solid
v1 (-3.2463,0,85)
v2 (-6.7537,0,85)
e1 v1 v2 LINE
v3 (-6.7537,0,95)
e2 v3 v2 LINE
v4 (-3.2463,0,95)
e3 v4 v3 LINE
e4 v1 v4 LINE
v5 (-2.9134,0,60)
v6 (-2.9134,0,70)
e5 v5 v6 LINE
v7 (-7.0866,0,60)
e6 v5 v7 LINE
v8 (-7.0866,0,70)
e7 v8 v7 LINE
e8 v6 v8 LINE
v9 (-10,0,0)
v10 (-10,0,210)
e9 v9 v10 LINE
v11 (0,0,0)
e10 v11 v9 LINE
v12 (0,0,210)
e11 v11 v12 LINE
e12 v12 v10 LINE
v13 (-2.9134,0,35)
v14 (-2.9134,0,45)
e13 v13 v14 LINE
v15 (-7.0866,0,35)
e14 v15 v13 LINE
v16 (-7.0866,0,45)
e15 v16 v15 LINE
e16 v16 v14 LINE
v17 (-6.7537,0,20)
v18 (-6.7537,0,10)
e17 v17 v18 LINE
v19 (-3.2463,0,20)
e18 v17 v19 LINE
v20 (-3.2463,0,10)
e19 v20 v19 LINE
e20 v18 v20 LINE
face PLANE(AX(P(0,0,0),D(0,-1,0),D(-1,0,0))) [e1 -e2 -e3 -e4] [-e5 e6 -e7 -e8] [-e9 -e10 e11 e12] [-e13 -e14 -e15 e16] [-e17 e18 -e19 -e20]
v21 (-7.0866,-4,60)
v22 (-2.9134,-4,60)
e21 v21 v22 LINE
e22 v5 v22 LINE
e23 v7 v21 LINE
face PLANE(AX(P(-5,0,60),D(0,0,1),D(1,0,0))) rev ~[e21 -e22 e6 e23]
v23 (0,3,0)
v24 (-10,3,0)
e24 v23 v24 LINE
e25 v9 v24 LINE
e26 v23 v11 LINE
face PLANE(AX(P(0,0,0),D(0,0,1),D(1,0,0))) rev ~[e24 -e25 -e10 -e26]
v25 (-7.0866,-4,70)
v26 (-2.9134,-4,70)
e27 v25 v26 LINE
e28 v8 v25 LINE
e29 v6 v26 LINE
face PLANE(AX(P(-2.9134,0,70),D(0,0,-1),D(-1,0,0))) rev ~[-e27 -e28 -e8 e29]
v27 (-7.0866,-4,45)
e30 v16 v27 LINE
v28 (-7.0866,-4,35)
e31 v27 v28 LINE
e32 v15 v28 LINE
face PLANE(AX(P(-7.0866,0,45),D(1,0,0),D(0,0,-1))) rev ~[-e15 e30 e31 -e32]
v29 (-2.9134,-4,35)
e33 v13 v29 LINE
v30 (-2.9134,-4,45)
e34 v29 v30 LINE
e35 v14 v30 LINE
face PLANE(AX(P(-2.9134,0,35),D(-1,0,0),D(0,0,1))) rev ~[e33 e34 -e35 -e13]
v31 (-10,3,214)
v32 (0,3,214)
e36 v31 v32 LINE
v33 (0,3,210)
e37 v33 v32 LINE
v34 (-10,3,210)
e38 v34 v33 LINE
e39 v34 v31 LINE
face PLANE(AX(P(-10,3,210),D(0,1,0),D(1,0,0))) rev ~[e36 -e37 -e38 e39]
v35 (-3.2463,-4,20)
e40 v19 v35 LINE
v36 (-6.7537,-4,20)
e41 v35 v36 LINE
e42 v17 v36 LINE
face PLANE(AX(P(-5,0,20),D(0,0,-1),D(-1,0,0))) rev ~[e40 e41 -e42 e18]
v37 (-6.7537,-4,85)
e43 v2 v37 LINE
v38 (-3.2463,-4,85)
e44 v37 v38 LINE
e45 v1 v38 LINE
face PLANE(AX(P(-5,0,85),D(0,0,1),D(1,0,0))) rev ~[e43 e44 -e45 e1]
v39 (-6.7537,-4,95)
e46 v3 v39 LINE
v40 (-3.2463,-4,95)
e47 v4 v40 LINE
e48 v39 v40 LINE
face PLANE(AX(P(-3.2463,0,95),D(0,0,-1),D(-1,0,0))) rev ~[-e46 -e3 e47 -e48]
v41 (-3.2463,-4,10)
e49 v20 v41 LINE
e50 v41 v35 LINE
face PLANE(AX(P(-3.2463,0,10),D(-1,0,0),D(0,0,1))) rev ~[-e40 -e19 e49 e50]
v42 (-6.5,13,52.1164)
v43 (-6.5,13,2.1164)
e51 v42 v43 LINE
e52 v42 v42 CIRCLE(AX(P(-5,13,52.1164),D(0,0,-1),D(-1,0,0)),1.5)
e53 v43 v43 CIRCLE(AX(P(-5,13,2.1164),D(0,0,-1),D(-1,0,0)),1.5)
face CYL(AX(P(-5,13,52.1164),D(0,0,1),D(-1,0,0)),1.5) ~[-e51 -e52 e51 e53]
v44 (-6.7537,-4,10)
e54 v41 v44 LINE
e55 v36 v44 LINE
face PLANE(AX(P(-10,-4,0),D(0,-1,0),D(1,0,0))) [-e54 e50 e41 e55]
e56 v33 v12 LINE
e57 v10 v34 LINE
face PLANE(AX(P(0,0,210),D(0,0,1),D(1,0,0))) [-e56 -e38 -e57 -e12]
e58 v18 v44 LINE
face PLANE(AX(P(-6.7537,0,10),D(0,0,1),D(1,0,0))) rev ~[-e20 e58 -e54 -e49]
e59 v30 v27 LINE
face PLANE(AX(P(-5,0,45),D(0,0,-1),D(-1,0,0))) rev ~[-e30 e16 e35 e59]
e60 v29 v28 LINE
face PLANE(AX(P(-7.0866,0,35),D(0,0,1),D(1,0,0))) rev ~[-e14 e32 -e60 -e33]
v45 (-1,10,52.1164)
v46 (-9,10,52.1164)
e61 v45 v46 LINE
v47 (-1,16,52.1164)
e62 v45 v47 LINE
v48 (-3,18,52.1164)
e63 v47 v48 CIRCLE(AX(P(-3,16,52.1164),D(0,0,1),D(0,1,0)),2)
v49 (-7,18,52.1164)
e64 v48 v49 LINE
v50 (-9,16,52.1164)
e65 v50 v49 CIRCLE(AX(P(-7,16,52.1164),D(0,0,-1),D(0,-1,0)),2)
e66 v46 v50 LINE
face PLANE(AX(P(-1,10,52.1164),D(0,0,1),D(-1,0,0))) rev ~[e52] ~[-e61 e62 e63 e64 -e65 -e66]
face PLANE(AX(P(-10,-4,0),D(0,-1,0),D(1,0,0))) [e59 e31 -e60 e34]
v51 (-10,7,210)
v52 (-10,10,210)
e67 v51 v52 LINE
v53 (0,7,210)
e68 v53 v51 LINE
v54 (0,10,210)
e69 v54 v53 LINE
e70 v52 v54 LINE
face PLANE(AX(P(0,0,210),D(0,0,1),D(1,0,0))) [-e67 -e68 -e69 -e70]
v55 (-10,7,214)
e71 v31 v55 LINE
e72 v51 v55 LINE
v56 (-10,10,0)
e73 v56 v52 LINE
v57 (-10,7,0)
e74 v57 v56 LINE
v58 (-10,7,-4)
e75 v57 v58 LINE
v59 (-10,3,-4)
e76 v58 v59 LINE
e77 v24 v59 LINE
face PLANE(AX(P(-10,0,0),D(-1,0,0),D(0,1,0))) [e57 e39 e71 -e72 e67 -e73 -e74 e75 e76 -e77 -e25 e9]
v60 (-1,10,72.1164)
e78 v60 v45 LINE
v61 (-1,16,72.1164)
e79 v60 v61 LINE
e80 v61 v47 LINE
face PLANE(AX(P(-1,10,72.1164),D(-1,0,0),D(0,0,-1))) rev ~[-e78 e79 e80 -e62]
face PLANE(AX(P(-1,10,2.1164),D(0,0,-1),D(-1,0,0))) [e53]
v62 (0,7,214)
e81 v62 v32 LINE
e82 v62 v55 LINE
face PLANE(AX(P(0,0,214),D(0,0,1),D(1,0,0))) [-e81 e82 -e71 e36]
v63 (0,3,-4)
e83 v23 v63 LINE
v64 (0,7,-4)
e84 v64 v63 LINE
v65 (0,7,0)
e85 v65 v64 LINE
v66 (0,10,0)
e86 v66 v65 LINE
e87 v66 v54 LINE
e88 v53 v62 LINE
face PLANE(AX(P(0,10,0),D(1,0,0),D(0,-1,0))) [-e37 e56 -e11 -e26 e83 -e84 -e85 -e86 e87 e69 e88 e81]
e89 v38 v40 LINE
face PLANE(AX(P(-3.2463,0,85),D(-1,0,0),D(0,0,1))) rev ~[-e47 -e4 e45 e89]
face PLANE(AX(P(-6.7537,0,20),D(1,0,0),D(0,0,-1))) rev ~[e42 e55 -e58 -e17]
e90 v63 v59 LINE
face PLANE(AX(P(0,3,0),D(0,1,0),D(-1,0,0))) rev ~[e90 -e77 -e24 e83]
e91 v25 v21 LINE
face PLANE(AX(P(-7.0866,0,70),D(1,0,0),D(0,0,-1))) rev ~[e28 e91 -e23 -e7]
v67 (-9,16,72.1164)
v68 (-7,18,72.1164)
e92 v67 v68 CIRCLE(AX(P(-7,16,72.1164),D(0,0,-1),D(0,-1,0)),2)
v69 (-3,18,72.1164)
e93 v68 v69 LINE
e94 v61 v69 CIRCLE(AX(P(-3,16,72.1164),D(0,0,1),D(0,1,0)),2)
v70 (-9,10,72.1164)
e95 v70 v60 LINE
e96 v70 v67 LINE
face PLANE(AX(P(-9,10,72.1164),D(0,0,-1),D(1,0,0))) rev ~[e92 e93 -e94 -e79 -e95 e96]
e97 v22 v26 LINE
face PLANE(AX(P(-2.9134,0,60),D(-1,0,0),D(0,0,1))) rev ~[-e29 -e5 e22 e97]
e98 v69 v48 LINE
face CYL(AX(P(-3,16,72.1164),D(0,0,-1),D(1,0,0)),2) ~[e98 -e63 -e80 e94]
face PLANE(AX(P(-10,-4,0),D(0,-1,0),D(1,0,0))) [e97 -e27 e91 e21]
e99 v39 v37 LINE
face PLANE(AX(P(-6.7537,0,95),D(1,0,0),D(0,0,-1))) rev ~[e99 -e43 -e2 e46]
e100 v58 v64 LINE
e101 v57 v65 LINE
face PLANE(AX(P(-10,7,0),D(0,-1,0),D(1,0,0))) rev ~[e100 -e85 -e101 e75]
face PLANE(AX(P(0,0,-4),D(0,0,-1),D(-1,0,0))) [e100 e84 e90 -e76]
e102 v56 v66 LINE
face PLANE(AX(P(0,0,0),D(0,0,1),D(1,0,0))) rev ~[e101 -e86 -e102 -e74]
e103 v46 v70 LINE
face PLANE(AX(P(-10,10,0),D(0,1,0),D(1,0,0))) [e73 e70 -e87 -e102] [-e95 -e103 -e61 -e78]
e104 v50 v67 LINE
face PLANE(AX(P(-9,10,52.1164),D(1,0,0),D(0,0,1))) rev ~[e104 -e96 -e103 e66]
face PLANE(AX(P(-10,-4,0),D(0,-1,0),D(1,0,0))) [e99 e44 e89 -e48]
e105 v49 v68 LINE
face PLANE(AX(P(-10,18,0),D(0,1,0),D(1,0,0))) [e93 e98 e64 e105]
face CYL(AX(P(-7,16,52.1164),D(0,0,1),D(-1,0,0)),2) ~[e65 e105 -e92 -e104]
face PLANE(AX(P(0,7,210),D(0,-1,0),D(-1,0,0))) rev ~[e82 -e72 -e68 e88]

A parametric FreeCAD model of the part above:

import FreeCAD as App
import Part
import Sketcher
from FreeCAD import Vector
Q = App.Units.Quantity


def edges_at(feature, points):
    """Names of the edges that pass closest to the given points."""
    edges = feature.Shape.Edges
    near = lambda p: min(range(len(edges)), key=lambda i: edges[i].distToShape(Part.Vertex(*p))[0])
    return sorted({f"Edge{near(p) + 1}" for p in points})


def add_polygon(sketch, points):
    """Adds a closed chain of lines whose ends are joined by coincident constraints."""
    first, n = sketch.GeometryCount, len(points)
    for a, b in zip(points, points[1:] + points[:1]):
        sketch.addGeometry(Part.LineSegment(App.Vector(*a, 0), App.Vector(*b, 0)), False)
    for i in range(n):
        sketch.addConstraint(Sketcher.Constraint("Coincident", first + i, 2, first + (i + 1) % n, 1))

doc = App.newDocument("Part")
params = doc.addObject("Spreadsheet::Sheet", "Params")
for row, (alias, value) in enumerate([
    ("sketch1_width", "10 mm"),
    ("pad1_length", "210 mm"),
    ("sketch2_height", "4 mm"),
    ("sketch2_width", "10 mm"),
    ("pad2_length", "4 mm"),
    ("sketch3_width", "10 mm"),
    ("sketch3_height", "4 mm"),
    ("pad3_length", "4 mm"),
    ("sketch4_height", "10 mm"),
    ("pad4_length", "4 mm"),
    ("sketch5_width", "8 mm"),
    ("sketch5_height", "20 mm"),
    ("pad5_length", "8 mm"),
    ("fillet_radius", "2 mm"),
    ("sketch6_diameter", "3 mm"),
    ("pad6_length", "50 mm"),
], start=1):
    params.set(f"A{row}", alias)
    params.set(f"B{row}", "=" + value)
    params.setAlias(f"B{row}", alias)

body = doc.addObject("PartDesign::Body", "Body")

sketch1 = doc.addObject("Sketcher::SketchObject", "Sketch")
body.addObject(sketch1)
sketch1.AttachmentSupport = (doc.XY_Plane, [""])
sketch1.MapMode = "FlatFace"
add_polygon(sketch1, [(-10, 0), (0, 0), (0, 10), (-10, 10)])
sketch1.addConstraint([
    Sketcher.Constraint("Horizontal", 0),
    Sketcher.Constraint("Vertical", 1),
    Sketcher.Constraint("Horizontal", 2),
    Sketcher.Constraint("Vertical", 3),
    Sketcher.Constraint("Coincident", 0, 2, -1, 1),
    Sketcher.Constraint("Equal", 2, 1),
    Sketcher.Constraint("DistanceX", 0, 1, 0, 2, Q("10 mm")),
])
sketch1.setExpression("Constraints[10]", "Params.sketch1_width")
pad1 = doc.addObject("PartDesign::Pad", "Pad")
body.addObject(pad1)
pad1.Profile = sketch1
pad1.setExpression("Length", "Params.pad1_length")

sketch2 = doc.addObject("Sketcher::SketchObject", "Sketch001")
body.addObject(sketch2)
sketch2.AttachmentSupport = (doc.XY_Plane, [""])
sketch2.MapMode = "FlatFace"
sketch2.AttachmentOffset = App.Placement(Vector(0, 0, 210), App.Rotation())
add_polygon(sketch2, [(0, 7), (-10, 7), (-10, 3), (0, 3)])
sketch2.addConstraint([
    Sketcher.Constraint("Horizontal", 0),
    Sketcher.Constraint("Vertical", 1),
    Sketcher.Constraint("Horizontal", 2),
    Sketcher.Constraint("Vertical", 3),
    Sketcher.Constraint("PointOnObject", 2, 2, -2),
    Sketcher.Constraint("DistanceY", 1, 2, 1, 1, Q("4 mm")),
    Sketcher.Constraint("DistanceX", 0, 2, 0, 1, Q("10 mm")),
    Sketcher.Constraint("DistanceY", -1, 1, 0, 2, Q("7 mm")),
])
sketch2.setExpression("Constraints[9]", "Params.sketch2_height")
sketch2.setExpression("Constraints[10]", "Params.sketch2_width")
pad2 = doc.addObject("PartDesign::Pad", "Pad001")
body.addObject(pad2)
pad2.Profile = sketch2
pad2.setExpression("Length", "Params.pad2_length")

sketch3 = doc.addObject("Sketcher::SketchObject", "Sketch002")
body.addObject(sketch3)
sketch3.AttachmentSupport = (doc.XY_Plane, [""])
sketch3.MapMode = "FlatFace"
add_polygon(sketch3, [(-10, 3), (-10, 7), (0, 7), (0, 3)])
sketch3.addConstraint([
    Sketcher.Constraint("Vertical", 0),
    Sketcher.Constraint("Horizontal", 1),
    Sketcher.Constraint("Vertical", 2),
    Sketcher.Constraint("Horizontal", 3),
    Sketcher.Constraint("PointOnObject", 1, 2, -2),
    Sketcher.Constraint("DistanceX", 1, 1, 1, 2, Q("10 mm")),
    Sketcher.Constraint("DistanceY", 0, 1, 0, 2, Q("4 mm")),
    Sketcher.Constraint("DistanceY", -1, 1, 0, 2, Q("7 mm")),
])
sketch3.setExpression("Constraints[9]", "Params.sketch3_width")
sketch3.setExpression("Constraints[10]", "Params.sketch3_height")
pad3 = doc.addObject("PartDesign::Pad", "Pad002")
body.addObject(pad3)
pad3.Profile = sketch3
pad3.setExpression("Length", "Params.pad3_length")
pad3.Reversed = True

sketch4 = doc.addObject("Sketcher::SketchObject", "Sketch003")
body.addObject(sketch4)
sketch4.AttachmentSupport = (doc.XZ_Plane, [""])
sketch4.MapMode = "FlatFace"
add_polygon(sketch4, [(-6.7537, 10), (-3.2463, 10), (-3.2463, 20), (-6.7537, 20)])
add_polygon(sketch4, [(-3.2463, 95), (-6.7537, 95), (-6.7537, 85), (-3.2463, 85)])
add_polygon(sketch4, [(-7.0866, 35), (-2.9134, 35), (-2.9134, 45), (-7.0866, 45)])
add_polygon(sketch4, [(-2.9134, 70), (-7.0866, 70), (-7.0866, 60), (-2.9134, 60)])
sketch4.addConstraint([
    Sketcher.Constraint("Horizontal", 0),
    Sketcher.Constraint("Vertical", 1),
    Sketcher.Constraint("Horizontal", 2),
    Sketcher.Constraint("Vertical", 3),
    Sketcher.Constraint("Horizontal", 4),
    Sketcher.Constraint("Vertical", 5),
    Sketcher.Constraint("Horizontal", 6),
    Sketcher.Constraint("Vertical", 7),
    Sketcher.Constraint("Horizontal", 8),
    Sketcher.Constraint("Vertical", 9),
    Sketcher.Constraint("Horizontal", 10),
    Sketcher.Constraint("Vertical", 11),
    Sketcher.Constraint("Horizontal", 12),
    Sketcher.Constraint("Vertical", 13),
    Sketcher.Constraint("Horizontal", 14),
    Sketcher.Constraint("Vertical", 15),
    Sketcher.Constraint("Vertical", 3, 2, 4, 2),
    Sketcher.Constraint("Vertical", 1, 2, 6, 2),
    Sketcher.Constraint("Vertical", 11, 2, 12, 2),
    Sketcher.Constraint("Vertical", 9, 2, 14, 2),
    Sketcher.Constraint("Equal", 3, 5),
    Sketcher.Constraint("Equal", 7, 9),
    Sketcher.Constraint("Equal", 11, 13),
    Sketcher.Constraint("DistanceY", 1, 1, 1, 2, Q("10 mm")),
    Sketcher.Constraint("DistanceY", -1, 1, 0, 2, Q("10 mm")),
    Sketcher.Constraint("DistanceY", 1, 2, 8, 2, Q("15 mm")),
    Sketcher.Constraint("DistanceY", 12, 2, 5, 2, Q("15 mm")),
    Sketcher.Constraint("DistanceY", 10, 2, 13, 2, Q("15 mm")),
    Sketcher.Constraint("DistanceX", 0, 1, 0, 2, Q("3.5074 mm")),
    Sketcher.Constraint("DistanceX", 8, 1, 8, 2, Q("4.1732 mm")),
    Sketcher.Constraint("DistanceX", 1, 2, 8, 2, Q("0.333 mm")),
    Sketcher.Constraint("DistanceX", 0, 2, -1, 1, Q("3.2463 mm")),
])
sketch4.setExpression("Constraints[39]", "Params.sketch4_height")
pad4 = doc.addObject("PartDesign::Pad", "Pad003")
body.addObject(pad4)
pad4.Profile = sketch4
pad4.setExpression("Length", "Params.pad4_length")

sketch5 = doc.addObject("Sketcher::SketchObject", "Sketch004")
body.addObject(sketch5)
sketch5.AttachmentSupport = (doc.XZ_Plane, [""])
sketch5.MapMode = "FlatFace"
sketch5.AttachmentOffset = App.Placement(Vector(0, 0, -10), App.Rotation())
add_polygon(sketch5, [(-1, 72.1164), (-1, 52.1164), (-9, 52.1164), (-9, 72.1164)])
sketch5.addConstraint([
    Sketcher.Constraint("Vertical", 0),
    Sketcher.Constraint("Horizontal", 1),
    Sketcher.Constraint("Vertical", 2),
    Sketcher.Constraint("Horizontal", 3),
    Sketcher.Constraint("DistanceX", 1, 2, 1, 1, Q("8 mm")),
    Sketcher.Constraint("DistanceY", 0, 2, 0, 1, Q("20 mm")),
    Sketcher.Constraint("DistanceX", 0, 2, -1, 1, Q("1 mm")),
    Sketcher.Constraint("DistanceY", -1, 1, 0, 2, Q("52.1164 mm")),
])
sketch5.setExpression("Constraints[8]", "Params.sketch5_width")
sketch5.setExpression("Constraints[9]", "Params.sketch5_height")
pad5 = doc.addObject("PartDesign::Pad", "Pad004")
body.addObject(pad5)
pad5.Profile = sketch5
pad5.setExpression("Length", "Params.pad5_length")
pad5.Reversed = True
doc.recompute()

fillet = doc.addObject("PartDesign::Fillet", "Fillet")
body.addObject(fillet)
fillet.Base = (pad5, edges_at(pad5, [(-1, 18, 62.116), (-9, 18, 62.116)]))
fillet.setExpression("Radius", "Params.fillet_radius")

sketch6 = doc.addObject("Sketcher::SketchObject", "Sketch005")
body.addObject(sketch6)
sketch6.AttachmentSupport = (doc.XY_Plane, [""])
sketch6.MapMode = "FlatFace"
sketch6.AttachmentOffset = App.Placement(Vector(0, 0, 52.1164), App.Rotation())
sketch6.addGeometry(Part.Circle(Vector(-5, 13, 0), Vector(0, 0, 1), 1.5), False)
sketch6.addConstraint([
    Sketcher.Constraint("Diameter", 0, Q("3 mm")),
    Sketcher.Constraint("DistanceX", 0, 3, -1, 1, Q("5 mm")),
    Sketcher.Constraint("DistanceY", -1, 1, 0, 3, Q("13 mm")),
])
sketch6.setExpression("Constraints[0]", "Params.sketch6_diameter")
pad6 = doc.addObject("PartDesign::Pad", "Pad005")
body.addObject(pad6)
pad6.Profile = sketch6
pad6.setExpression("Length", "Params.pad6_length")
pad6.Reversed = True

doc.recompute()
